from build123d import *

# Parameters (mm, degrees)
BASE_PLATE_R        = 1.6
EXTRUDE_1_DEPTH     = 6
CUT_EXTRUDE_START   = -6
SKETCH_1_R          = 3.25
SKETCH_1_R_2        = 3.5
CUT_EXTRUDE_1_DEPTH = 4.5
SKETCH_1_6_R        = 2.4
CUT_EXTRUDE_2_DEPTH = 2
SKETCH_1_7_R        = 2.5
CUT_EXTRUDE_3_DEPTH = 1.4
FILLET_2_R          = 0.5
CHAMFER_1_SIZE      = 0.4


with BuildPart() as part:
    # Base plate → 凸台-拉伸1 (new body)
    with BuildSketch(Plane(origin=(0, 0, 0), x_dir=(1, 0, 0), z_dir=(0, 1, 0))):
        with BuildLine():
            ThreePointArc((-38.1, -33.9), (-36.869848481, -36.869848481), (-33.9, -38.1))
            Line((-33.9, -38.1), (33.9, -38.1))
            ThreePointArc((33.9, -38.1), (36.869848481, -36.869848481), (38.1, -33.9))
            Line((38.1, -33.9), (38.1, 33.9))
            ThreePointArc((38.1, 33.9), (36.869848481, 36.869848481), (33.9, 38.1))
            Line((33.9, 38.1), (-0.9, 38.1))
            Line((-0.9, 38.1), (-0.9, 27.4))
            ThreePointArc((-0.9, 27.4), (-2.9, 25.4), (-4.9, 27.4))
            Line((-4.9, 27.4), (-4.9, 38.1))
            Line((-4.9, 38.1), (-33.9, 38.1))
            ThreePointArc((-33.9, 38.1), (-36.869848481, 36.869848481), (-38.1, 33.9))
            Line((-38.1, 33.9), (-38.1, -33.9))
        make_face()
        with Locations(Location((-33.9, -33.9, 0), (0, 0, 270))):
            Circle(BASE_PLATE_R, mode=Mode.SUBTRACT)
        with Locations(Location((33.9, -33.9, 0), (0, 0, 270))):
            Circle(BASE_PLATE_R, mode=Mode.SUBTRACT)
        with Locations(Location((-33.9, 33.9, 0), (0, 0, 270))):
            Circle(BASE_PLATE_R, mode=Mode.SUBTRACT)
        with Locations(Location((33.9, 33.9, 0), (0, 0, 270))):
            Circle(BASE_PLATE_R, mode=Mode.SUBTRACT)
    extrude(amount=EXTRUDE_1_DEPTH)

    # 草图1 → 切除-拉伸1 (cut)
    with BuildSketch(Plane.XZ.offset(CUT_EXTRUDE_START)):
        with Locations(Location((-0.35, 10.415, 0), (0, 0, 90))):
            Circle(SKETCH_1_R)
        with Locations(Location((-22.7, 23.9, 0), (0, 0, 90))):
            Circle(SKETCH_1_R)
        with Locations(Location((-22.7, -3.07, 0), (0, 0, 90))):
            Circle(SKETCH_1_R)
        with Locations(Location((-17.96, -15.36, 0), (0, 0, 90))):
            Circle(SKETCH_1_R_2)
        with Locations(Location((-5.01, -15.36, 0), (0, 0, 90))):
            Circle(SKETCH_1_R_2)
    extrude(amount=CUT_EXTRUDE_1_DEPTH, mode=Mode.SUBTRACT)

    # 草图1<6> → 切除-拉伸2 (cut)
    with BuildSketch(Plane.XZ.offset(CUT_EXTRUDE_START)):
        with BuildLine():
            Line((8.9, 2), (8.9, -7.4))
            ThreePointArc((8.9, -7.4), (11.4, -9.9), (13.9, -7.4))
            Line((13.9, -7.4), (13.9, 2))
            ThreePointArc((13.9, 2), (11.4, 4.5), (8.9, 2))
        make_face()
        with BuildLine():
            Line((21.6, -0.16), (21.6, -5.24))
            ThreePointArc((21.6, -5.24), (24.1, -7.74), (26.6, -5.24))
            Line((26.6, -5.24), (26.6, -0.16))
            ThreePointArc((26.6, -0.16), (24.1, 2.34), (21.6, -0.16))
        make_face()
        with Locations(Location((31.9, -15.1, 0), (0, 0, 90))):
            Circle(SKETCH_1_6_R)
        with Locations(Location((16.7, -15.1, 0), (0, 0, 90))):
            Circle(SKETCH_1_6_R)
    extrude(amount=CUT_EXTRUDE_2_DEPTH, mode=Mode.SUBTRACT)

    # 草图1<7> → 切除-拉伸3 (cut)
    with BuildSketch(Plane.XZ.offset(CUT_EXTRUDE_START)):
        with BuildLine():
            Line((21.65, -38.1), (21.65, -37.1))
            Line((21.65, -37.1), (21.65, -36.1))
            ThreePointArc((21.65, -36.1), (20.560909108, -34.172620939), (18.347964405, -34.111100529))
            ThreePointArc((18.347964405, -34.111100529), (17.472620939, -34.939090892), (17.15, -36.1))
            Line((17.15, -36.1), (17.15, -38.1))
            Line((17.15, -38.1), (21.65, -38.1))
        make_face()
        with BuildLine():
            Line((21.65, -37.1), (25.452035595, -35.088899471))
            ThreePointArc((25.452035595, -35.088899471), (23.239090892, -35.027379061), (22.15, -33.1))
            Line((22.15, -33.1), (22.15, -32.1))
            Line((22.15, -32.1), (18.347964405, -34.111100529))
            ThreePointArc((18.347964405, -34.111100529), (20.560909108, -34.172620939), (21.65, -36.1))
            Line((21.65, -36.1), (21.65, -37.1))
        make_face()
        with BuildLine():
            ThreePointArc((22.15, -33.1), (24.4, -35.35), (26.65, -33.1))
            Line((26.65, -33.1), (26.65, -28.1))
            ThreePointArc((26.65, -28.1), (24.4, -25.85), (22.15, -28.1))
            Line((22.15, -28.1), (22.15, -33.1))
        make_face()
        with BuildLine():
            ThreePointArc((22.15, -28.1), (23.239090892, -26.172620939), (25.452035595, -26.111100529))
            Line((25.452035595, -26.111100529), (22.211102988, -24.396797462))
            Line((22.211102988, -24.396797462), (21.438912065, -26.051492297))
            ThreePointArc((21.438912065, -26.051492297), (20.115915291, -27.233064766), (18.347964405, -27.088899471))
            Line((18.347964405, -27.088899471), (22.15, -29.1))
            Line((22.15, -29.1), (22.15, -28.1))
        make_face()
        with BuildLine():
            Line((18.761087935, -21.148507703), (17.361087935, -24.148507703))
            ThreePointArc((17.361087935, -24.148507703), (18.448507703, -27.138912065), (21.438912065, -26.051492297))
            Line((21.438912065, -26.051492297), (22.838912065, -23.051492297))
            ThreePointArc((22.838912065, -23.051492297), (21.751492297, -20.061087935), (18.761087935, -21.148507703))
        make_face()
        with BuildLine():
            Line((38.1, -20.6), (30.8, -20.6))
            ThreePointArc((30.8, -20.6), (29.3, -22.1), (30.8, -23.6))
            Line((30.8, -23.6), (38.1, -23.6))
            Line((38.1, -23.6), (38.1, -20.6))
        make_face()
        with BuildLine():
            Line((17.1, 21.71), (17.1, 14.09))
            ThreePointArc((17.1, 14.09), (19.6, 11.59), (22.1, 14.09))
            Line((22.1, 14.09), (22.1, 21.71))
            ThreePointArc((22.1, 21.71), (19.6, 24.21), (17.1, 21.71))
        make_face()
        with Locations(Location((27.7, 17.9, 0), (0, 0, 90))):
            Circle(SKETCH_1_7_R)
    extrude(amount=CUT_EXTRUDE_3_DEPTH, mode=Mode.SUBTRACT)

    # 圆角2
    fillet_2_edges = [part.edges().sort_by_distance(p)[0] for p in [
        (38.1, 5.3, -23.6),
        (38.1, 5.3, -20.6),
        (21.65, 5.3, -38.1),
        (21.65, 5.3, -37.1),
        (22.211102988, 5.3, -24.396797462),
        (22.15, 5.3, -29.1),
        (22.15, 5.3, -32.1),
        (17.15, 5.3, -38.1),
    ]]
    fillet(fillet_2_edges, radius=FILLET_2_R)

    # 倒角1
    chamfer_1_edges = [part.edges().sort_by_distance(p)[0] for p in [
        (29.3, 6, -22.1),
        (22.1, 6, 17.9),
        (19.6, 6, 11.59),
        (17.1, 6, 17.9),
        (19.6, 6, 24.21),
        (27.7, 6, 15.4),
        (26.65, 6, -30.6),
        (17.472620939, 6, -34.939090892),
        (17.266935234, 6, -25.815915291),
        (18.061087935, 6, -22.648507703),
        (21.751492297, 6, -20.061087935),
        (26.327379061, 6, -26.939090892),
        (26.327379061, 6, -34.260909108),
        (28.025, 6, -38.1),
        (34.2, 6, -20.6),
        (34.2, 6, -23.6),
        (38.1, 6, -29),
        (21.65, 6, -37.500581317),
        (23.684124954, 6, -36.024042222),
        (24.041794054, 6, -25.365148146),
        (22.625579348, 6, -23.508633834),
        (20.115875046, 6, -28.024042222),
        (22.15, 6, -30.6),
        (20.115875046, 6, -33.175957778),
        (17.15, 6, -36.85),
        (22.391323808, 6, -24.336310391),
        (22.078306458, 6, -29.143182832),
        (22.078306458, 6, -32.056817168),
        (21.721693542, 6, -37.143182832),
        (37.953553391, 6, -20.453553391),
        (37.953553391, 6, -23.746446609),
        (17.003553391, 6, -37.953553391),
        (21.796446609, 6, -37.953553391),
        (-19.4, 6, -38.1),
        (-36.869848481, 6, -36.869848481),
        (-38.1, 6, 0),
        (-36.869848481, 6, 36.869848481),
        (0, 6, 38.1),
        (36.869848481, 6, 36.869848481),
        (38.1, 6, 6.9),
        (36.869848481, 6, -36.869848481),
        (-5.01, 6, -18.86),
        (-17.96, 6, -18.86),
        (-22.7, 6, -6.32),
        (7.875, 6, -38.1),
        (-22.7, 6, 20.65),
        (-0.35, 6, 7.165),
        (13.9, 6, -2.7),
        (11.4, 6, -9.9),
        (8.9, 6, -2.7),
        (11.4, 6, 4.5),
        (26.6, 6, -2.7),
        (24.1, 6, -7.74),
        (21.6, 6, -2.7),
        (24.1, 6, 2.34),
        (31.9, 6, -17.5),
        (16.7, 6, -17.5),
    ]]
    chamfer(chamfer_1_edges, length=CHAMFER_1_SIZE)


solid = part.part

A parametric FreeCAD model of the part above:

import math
import FreeCAD as App
import Part
import Sketcher
from FreeCAD import Vector
Q = App.Units.Quantity


def edges_at(feature, points):
    """Names of the edges that pass closest to the given points."""
    edges = feature.Shape.Edges
    near = lambda p: min(range(len(edges)), key=lambda i: edges[i].distToShape(Part.Vertex(*p))[0])
    return sorted({f"Edge{near(p) + 1}" for p in points})

doc = App.newDocument("Part")
body = doc.addObject("PartDesign::Body", "Body")

sketch1 = body.newObject("Sketcher::SketchObject", "Sketch")
sketch1.AttachmentSupport = (doc.getObject("XZ_Plane"), [""])
sketch1.MapMode = "FlatFace"
sketch1.addGeometry([
    Part.ArcOfCircle(Part.Circle(Vector(-33.9, 33.9, 0), Vector(0, 0, 1), 4.2), math.radians(90), math.radians(180)),
    Part.LineSegment(Vector(-33.9, 38.1, 0), Vector(33.9, 38.1, 0)),
    Part.ArcOfCircle(Part.Circle(Vector(33.9, 33.9, 0), Vector(0, 0, 1), 4.2), math.radians(0), math.radians(90)),
    Part.LineSegment(Vector(38.1, 33.9, 0), Vector(38.1, -33.9, 0)),
    Part.ArcOfCircle(Part.Circle(Vector(33.9, -33.9, 0), Vector(0, 0, 1), 4.2), math.radians(-90), math.radians(0)),
    Part.LineSegment(Vector(33.9, -38.1, 0), Vector(-0.9, -38.1, 0)),
    Part.LineSegment(Vector(-0.9, -38.1, 0), Vector(-0.9, -27.4, 0)),
    Part.ArcOfCircle(Part.Circle(Vector(-2.9, -27.4, 0), Vector(0, 0, 1), 2), math.radians(0), math.radians(180)),
    Part.LineSegment(Vector(-4.9, -27.4, 0), Vector(-4.9, -38.1, 0)),
    Part.LineSegment(Vector(-4.9, -38.1, 0), Vector(-33.9, -38.1, 0)),
    Part.ArcOfCircle(Part.Circle(Vector(-33.9, -33.9, 0), Vector(0, 0, 1), 4.2), math.radians(180), math.radians(270)),
    Part.LineSegment(Vector(-38.1, -33.9, 0), Vector(-38.1, 33.9, 0)),
    Part.Circle(Vector(-33.9, 33.9, 0), Vector(0, 0, 1), 1.6),
    Part.Circle(Vector(33.9, 33.9, 0), Vector(0, 0, 1), 1.6),
    Part.Circle(Vector(-33.9, -33.9, 0), Vector(0, 0, 1), 1.6),
    Part.Circle(Vector(33.9, -33.9, 0), Vector(0, 0, 1), 1.6),
], False)
sketch1.addConstraint([
    Sketcher.Constraint("Tangent", 0, 1, 1, 1),
    Sketcher.Constraint("Tangent", 1, 2, 2, 2),
    Sketcher.Constraint("Tangent", 2, 1, 3, 1),
    Sketcher.Constraint("Tangent", 3, 2, 4, 2),
    Sketcher.Constraint("Tangent", 4, 1, 5, 1),
    Sketcher.Constraint("Coincident", 5, 2, 6, 1),
    Sketcher.Constraint("Tangent", 6, 2, 7, 1),
    Sketcher.Constraint("Tangent", 7, 2, 8, 1),
    Sketcher.Constraint("Coincident", 8, 2, 9, 1),
    Sketcher.Constraint("Tangent", 9, 2, 10, 2),
    Sketcher.Constraint("Tangent", 10, 1, 11, 1),
    Sketcher.Constraint("Tangent", 11, 2, 0, 2),
    Sketcher.Constraint("Horizontal", 1),
    Sketcher.Constraint("Vertical", 3),
    Sketcher.Constraint("Horizontal", 5),
    Sketcher.Constraint("Vertical", 6),
    Sketcher.Constraint("Vertical", 8),
    Sketcher.Constraint("Horizontal", 9),
    Sketcher.Constraint("Vertical", 11),
    Sketcher.Constraint("Coincident", 12, 3, 0, 3),
    Sketcher.Constraint("Coincident", 13, 3, 2, 3),
    Sketcher.Constraint("Coincident", 14, 3, 10, 3),
    Sketcher.Constraint("Coincident", 15, 3, 4, 3),
    Sketcher.Constraint("Equal", 0, 2),
    Sketcher.Constraint("Equal", 2, 4),
    Sketcher.Constraint("Equal", 4, 10),
    Sketcher.Constraint("Equal", 12, 13),
    Sketcher.Constraint("Equal", 13, 14),
    Sketcher.Constraint("Equal", 14, 15),
    Sketcher.Constraint("Symmetric", 0, 3, 4, 3, -1, 1),
    Sketcher.Constraint("Horizontal", 4, 3, 10, 3),
    Sketcher.Constraint("Equal", 1, 3),
    Sketcher.Constraint("Radius", 7, Q("2 mm")),
    Sketcher.Constraint("Diameter", 12, Q("3.2 mm")),
    Sketcher.Constraint("Radius", 0, Q("4.2 mm")),
    Sketcher.Constraint("DistanceX", 9, 2, 9, 1, Q("29 mm")),
    Sketcher.Constraint("DistanceX", 1, 1, 1, 2, Q("67.8 mm")),
    Sketcher.Constraint("DistanceY", 6, 1, 6, 2, Q("10.7 mm")),
])
pad1 = body.newObject("PartDesign::Pad", "Pad")
pad1.Profile = sketch1
pad1.Length = 6
pad1.Reversed = True

sketch2 = body.newObject("Sketcher::SketchObject", "Sketch001")
sketch2.AttachmentSupport = (doc.getObject("XZ_Plane"), [""])
sketch2.MapMode = "FlatFace"
sketch2.AttachmentOffset = App.Placement(Vector(0, 0, -6), App.Rotation())
sketch2.addGeometry([
    Part.Circle(Vector(-0.3, 10.4, 0), Vector(0, 0, 1), 3.2),
    Part.Circle(Vector(-22.7, 23.9, 0), Vector(0, 0, 1), 3.2),
    Part.Circle(Vector(-22.7, -3.1, 0), Vector(0, 0, 1), 3.2),
    Part.Circle(Vector(-18, -15.4, 0), Vector(0, 0, 1), 3.5),
    Part.Circle(Vector(-5, -15.4, 0), Vector(0, 0, 1), 3.5),
], False)
sketch2.addConstraint([
    Sketcher.Constraint("Equal", 0, 1),
    Sketcher.Constraint("Equal", 1, 2),
    Sketcher.Constraint("Equal", 3, 4),
    Sketcher.Constraint("Horizontal", 3, 3, 4, 3),
    Sketcher.Constraint("Vertical", 1, 3, 2, 3),
    Sketcher.Constraint("Diameter", 3, Q("7 mm")),
    Sketcher.Constraint("Diameter", 0, Q("6.5 mm")),
    Sketcher.Constraint("DistanceX", 1, 3, -1, 1, Q("22.7 mm")),
    Sketcher.Constraint("DistanceY", -1, 1, 1, 3, Q("23.9 mm")),
    Sketcher.Constraint("DistanceX", 0, 3, -1, 1, Q("0.35 mm")),
    Sketcher.Constraint("DistanceY", 2, 3, -1, 1, Q("3.07 mm")),
    Sketcher.Constraint("DistanceX", 3, 3, -1, 1, Q("17.96 mm")),
    Sketcher.Constraint("DistanceY", 3, 3, -1, 1, Q("15.36 mm")),
    Sketcher.Constraint("DistanceX", 4, 3, -1, 1, Q("5.01 mm")),
    Sketcher.Constraint("DistanceY", -1, 1, 0, 3, Q("10.415 mm")),
])
pocket1 = body.newObject("PartDesign::Pocket", "Pocket")
pocket1.Profile = sketch2
pocket1.Length = 4.5
pocket1.Reversed = True

sketch3 = body.newObject("Sketcher::SketchObject", "Sketch002")
sketch3.AttachmentSupport = (doc.getObject("XZ_Plane"), [""])
sketch3.MapMode = "FlatFace"
sketch3.AttachmentOffset = App.Placement(Vector(0, 0, -6), App.Rotation())
sketch3.addGeometry([
    Part.LineSegment(Vector(8.9, 2, 0), Vector(8.9, -7.4, 0)),
    Part.ArcOfCircle(Part.Circle(Vector(11.4, -7.4, 0), Vector(0, 0, 1), 2.5), math.radians(180), math.radians(360)),
    Part.LineSegment(Vector(13.9, -7.4, 0), Vector(13.9, 2, 0)),
    Part.ArcOfCircle(Part.Circle(Vector(11.4, 2, 0), Vector(0, 0, 1), 2.5), math.radians(0), math.radians(180)),
    Part.LineSegment(Vector(21.6, -0.2, 0), Vector(21.6, -5.2, 0)),
    Part.ArcOfCircle(Part.Circle(Vector(24.1, -5.2, 0), Vector(0, 0, 1), 2.5), math.radians(180), math.radians(360)),
    Part.LineSegment(Vector(26.6, -5.2, 0), Vector(26.6, -0.2, 0)),
    Part.ArcOfCircle(Part.Circle(Vector(24.1, -0.2, 0), Vector(0, 0, 1), 2.5), math.radians(0), math.radians(180)),
    Part.Circle(Vector(31.9, -15.1, 0), Vector(0, 0, 1), 2.4),
    Part.Circle(Vector(16.7, -15.1, 0), Vector(0, 0, 1), 2.4),
], False)
sketch3.addConstraint([
    Sketcher.Constraint("Tangent", 0, 2, 1, 1),
    Sketcher.Constraint("Tangent", 1, 2, 2, 1),
    Sketcher.Constraint("Tangent", 2, 2, 3, 1),
    Sketcher.Constraint("Tangent", 3, 2, 0, 1),
    Sketcher.Constraint("Tangent", 4, 2, 5, 1),
    Sketcher.Constraint("Tangent", 5, 2, 6, 1),
    Sketcher.Constraint("Tangent", 6, 2, 7, 1),
    Sketcher.Constraint("Tangent", 7, 2, 4, 1),
    Sketcher.Constraint("Vertical", 0),
    Sketcher.Constraint("Vertical", 2),
    Sketcher.Constraint("Vertical", 4),
    Sketcher.Constraint("Vertical", 6),
    Sketcher.Constraint("Equal", 3, 5),
    Sketcher.Constraint("Equal", 8, 9),
    Sketcher.Constraint("Horizontal", 8, 3, 9, 3),
    Sketcher.Constraint("Diameter", 8, Q("4.8 mm")),
    Sketcher.Constraint("Radius", 1, Q("2.5 mm")),
    Sketcher.Constraint("DistanceY", 0, 2, 0, 1, Q("9.4 mm")),
    Sketcher.Constraint("DistanceY", -1, 1, 3, 3, Q("2 mm")),
    Sketcher.Constraint("DistanceY", 4, 2, 4, 1, Q("5.08 mm")),
    Sketcher.Constraint("DistanceX", -1, 1, 1, 3, Q("11.4 mm")),
    Sketcher.Constraint("DistanceX", -1, 1, 5, 3, Q("24.1 mm")),
    Sketcher.Constraint("DistanceX", -1, 1, 8, 3, Q("31.9 mm")),
    Sketcher.Constraint("DistanceY", 8, 3, -1, 1, Q("15.1 mm")),
    Sketcher.Constraint("DistanceX", -1, 1, 9, 3, Q("16.7 mm")),
    Sketcher.Constraint("DistanceY", 5, 3, -1, 1, Q("5.24 mm")),
])
pocket2 = body.newObject("PartDesign::Pocket", "Pocket001")
pocket2.Profile = sketch3
pocket2.Length = 2
pocket2.Reversed = True

sketch4 = body.newObject("Sketcher::SketchObject", "Sketch003")
sketch4.AttachmentSupport = (doc.getObject("XZ_Plane"), [""])
sketch4.MapMode = "FlatFace"
sketch4.AttachmentOffset = App.Placement(Vector(0, 0, -6), App.Rotation())
sketch4.addGeometry([
    Part.LineSegment(Vector(21.6, -38.1, 0), Vector(21.6, -37.1, 0)),
    Part.LineSegment(Vector(21.6, -37.1, 0), Vector(25.5, -35.1, 0)),
    Part.ArcOfCircle(Part.Circle(Vector(24.4, -33.1, 0), Vector(0, 0, 1), 2.2), math.radians(-62), math.radians(0)),
    Part.LineSegment(Vector(26.6, -33.1, 0), Vector(26.6, -28.1, 0)),
    Part.ArcOfCircle(Part.Circle(Vector(24.4, -28.1, 0), Vector(0, 0, 1), 2.2), math.radians(0), math.radians(62)),
    Part.LineSegment(Vector(25.5, -26.1, 0), Vector(22.2, -24.4, 0)),
    Part.LineSegment(Vector(22.2, -24.4, 0), Vector(22.8, -23.1, 0)),
    Part.ArcOfCircle(Part.Circle(Vector(20.8, -22.1, 0), Vector(0, 0, 1), 2.2), math.radians(-25), math.radians(155)),
    Part.LineSegment(Vector(18.8, -21.1, 0), Vector(17.4, -24.1, 0)),
    Part.ArcOfCircle(Part.Circle(Vector(19.4, -25.1, 0), Vector(0, 0, 1), 2.2), math.radians(155), math.radians(242)),
    Part.LineSegment(Vector(18.3, -27.1, 0), Vector(22.1, -29.1, 0)),
    Part.LineSegment(Vector(22.1, -29.1, 0), Vector(22.1, -32.1, 0)),
    Part.LineSegment(Vector(22.1, -32.1, 0), Vector(18.3, -34.1, 0)),
    Part.ArcOfCircle(Part.Circle(Vector(19.4, -36.1, 0), Vector(0, 0, 1), 2.2), math.radians(118), math.radians(180)),
    Part.LineSegment(Vector(17.1, -36.1, 0), Vector(17.1, -38.1, 0)),
    Part.LineSegment(Vector(17.1, -38.1, 0), Vector(21.6, -38.1, 0)),
    Part.LineSegment(Vector(38.1, -20.6, 0), Vector(30.8, -20.6, 0)),
    Part.ArcOfCircle(Part.Circle(Vector(30.8, -22.1, 0), Vector(0, 0, 1), 1.5), math.radians(90), math.radians(270)),
    Part.LineSegment(Vector(30.8, -23.6, 0), Vector(38.1, -23.6, 0)),
    Part.LineSegment(Vector(38.1, -23.6, 0), Vector(38.1, -20.6, 0)),
    Part.LineSegment(Vector(17.1, 21.7, 0), Vector(17.1, 14.1, 0)),
    Part.ArcOfCircle(Part.Circle(Vector(19.6, 14.1, 0), Vector(0, 0, 1), 2.5), math.radians(180), math.radians(360)),
    Part.LineSegment(Vector(22.1, 14.1, 0), Vector(22.1, 21.7, 0)),
    Part.ArcOfCircle(Part.Circle(Vector(19.6, 21.7, 0), Vector(0, 0, 1), 2.5), math.radians(0), math.radians(180)),
    Part.Circle(Vector(27.7, 17.9, 0), Vector(0, 0, 1), 2.5),
], False)
sketch4.addConstraint([
    Sketcher.Constraint("Coincident", 0, 2, 1, 1),
    Sketcher.Constraint("Tangent", 1, 2, 2, 1),
    Sketcher.Constraint("Tangent", 2, 2, 3, 1),
    Sketcher.Constraint("Tangent", 3, 2, 4, 1),
    Sketcher.Constraint("Tangent", 4, 2, 5, 1),
    Sketcher.Constraint("Coincident", 5, 2, 6, 1),
    Sketcher.Constraint("Tangent", 6, 2, 7, 1),
    Sketcher.Constraint("Tangent", 7, 2, 8, 1),
    Sketcher.Constraint("Tangent", 8, 2, 9, 1),
    Sketcher.Constraint("Tangent", 9, 2, 10, 1),
    Sketcher.Constraint("Coincident", 10, 2, 11, 1),
    Sketcher.Constraint("Coincident", 11, 2, 12, 1),
    Sketcher.Constraint("Tangent", 12, 2, 13, 1),
    Sketcher.Constraint("Tangent", 13, 2, 14, 1),
    Sketcher.Constraint("Coincident", 14, 2, 15, 1),
    Sketcher.Constraint("Coincident", 15, 2, 0, 1),
    Sketcher.Constraint("Tangent", 16, 2, 17, 1),
    Sketcher.Constraint("Tangent", 17, 2, 18, 1),
    Sketcher.Constraint("Coincident", 18, 2, 19, 1),
    Sketcher.Constraint("Coincident", 19, 2, 16, 1),
    Sketcher.Constraint("Tangent", 20, 2, 21, 1),
    Sketcher.Constraint("Tangent", 21, 2, 22, 1),
    Sketcher.Constraint("Tangent", 22, 2, 23, 1),
    Sketcher.Constraint("Tangent", 23, 2, 20, 1),
    Sketcher.Constraint("Vertical", 0),
    Sketcher.Constraint("Vertical", 3),
    Sketcher.Constraint("Vertical", 11),
    Sketcher.Constraint("Vertical", 14),
    Sketcher.Constraint("Horizontal", 15),
    Sketcher.Constraint("Horizontal", 16),
    Sketcher.Constraint("Horizontal", 18),
    Sketcher.Constraint("Vertical", 19),
    Sketcher.Constraint("Vertical", 20),
    Sketcher.Constraint("Vertical", 22),
    Sketcher.Constraint("Equal", 2, 4),
    Sketcher.Constraint("Equal", 4, 7),
    Sketcher.Constraint("Equal", 7, 9),
    Sketcher.Constraint("Equal", 9, 13),
    Sketcher.Constraint("Equal", 23, 24),
    Sketcher.Constraint("Parallel", 6, 8),
    Sketcher.Constraint("Parallel", 5, 10),
    Sketcher.Constraint("Parallel", 1, 12),
    Sketcher.Constraint("Horizontal", 7, 3, 17, 3),
    Sketcher.Constraint("Vertical", 9, 3, 13, 3),
    Sketcher.Constraint("Vertical", 1, 2, 4, 2),
    Sketcher.Constraint("Equal", 11, 19),
    Sketcher.Constraint("Equal", 1, 10),
    Sketcher.Constraint("Diameter", 24, Q("5 mm")),
    Sketcher.Constraint("Radius", 17, Q("1.5 mm")),
    Sketcher.Constraint("DistanceY", 0, 1, 0, 2, Q("1 mm")),
    Sketcher.Constraint("DistanceY", 3, 1, 3, 2, Q("5 mm")),
    Sketcher.Constraint("DistanceY", 14, 2, 14, 1, Q("2 mm")),
    Sketcher.Constraint("Radius", 2, Q("2.25 mm")),
    Sketcher.Constraint("DistanceX", 15, 1, 15, 2, Q("4.5 mm")),
    Sketcher.Constraint("DistanceX", 16, 2, 16, 1, Q("7.3 mm")),
    Sketcher.Constraint("DistanceY", 4, 3, 7, 3, Q("6 mm")),
    Sketcher.Constraint("DistanceY", 9, 3, 7, 3, Q("3 mm")),
    Sketcher.Constraint("DistanceX", 9, 3, 4, 3, Q("5 mm")),
    Sketcher.Constraint("DistanceX", 7, 3, 17, 3, Q("10 mm")),
    Sketcher.Constraint("DistanceY", 17, 3, 24, 3, Q("40 mm")),
    Sketcher.Constraint("DistanceY", 20, 2, 20, 1, Q("7.62 mm")),
    Sketcher.Constraint("DistanceX", -1, 1, 2, 3, Q("24.4 mm")),
    Sketcher.Constraint("DistanceY", 2, 3, -1, 1, Q("33.1 mm")),
    Sketcher.Constraint("DistanceX", -1, 1, 7, 3, Q("20.8 mm")),
    Sketcher.Constraint("DistanceX", -1, 1, 21, 3, Q("19.6 mm")),
    Sketcher.Constraint("DistanceX", -1, 1, 24, 3, Q("27.7 mm")),
    Sketcher.Constraint("DistanceY", -1, 1, 21, 3, Q("14.09 mm")),
])
pocket3 = body.newObject("PartDesign::Pocket", "Pocket002")
pocket3.Profile = sketch4
pocket3.Length = 1.4
pocket3.Reversed = True
doc.recompute()

fillet = body.newObject("PartDesign::Fillet", "Fillet")
fillet.Base = (pocket3, edges_at(pocket3, [
    (38.1, 5.3, -23.6),
    (38.1, 5.3, -20.6),
    (21.65, 5.3, -38.1),
    (21.65, 5.3, -37.1),
    (22.211, 5.3, -24.397),
    (22.15, 5.3, -29.1),
    (22.15, 5.3, -32.1),
    (17.15, 5.3, -38.1),
]))
fillet.Radius = 0.5
doc.recompute()

chamfer = body.newObject("PartDesign::Chamfer", "Chamfer")
chamfer.Base = (fillet, edges_at(fillet, [
    (29.3, 6, -22.1),
    (22.1, 6, 17.9),
    (19.6, 6, 11.59),
    (17.1, 6, 17.9),
    (19.6, 6, 24.21),
    (27.7, 6, 15.4),
    (26.65, 6, -30.6),
    (17.473, 6, -34.939),
    (17.267, 6, -25.816),
    (18.061, 6, -22.649),
    (21.751, 6, -20.061),
    (26.327, 6, -26.939),
    (26.327, 6, -34.261),
    (28.025, 6, -38.1),
    (34.2, 6, -20.6),
    (34.2, 6, -23.6),
    (38.1, 6, -29),
    (21.65, 6, -37.501),
    (23.684, 6, -36.024),
    (24.042, 6, -25.365),
    (22.626, 6, -23.509),
    (20.116, 6, -28.024),
    (22.15, 6, -30.6),
    (20.116, 6, -33.176),
    (17.15, 6, -36.85),
    (22.391, 6, -24.336),
    (22.078, 6, -29.143),
    (22.078, 6, -32.057),
    (21.722, 6, -37.143),
    (37.954, 6, -20.454),
    (37.954, 6, -23.746),
    (17.004, 6, -37.954),
    (21.796, 6, -37.954),
    (-19.4, 6, -38.1),
    (-36.87, 6, -36.87),
    (-38.1, 6, 0),
    (-36.87, 6, 36.87),
    (0, 6, 38.1),
    (36.87, 6, 36.87),
    (38.1, 6, 6.9),
    (36.87, 6, -36.87),
    (-5.01, 6, -18.86),
    (-17.96, 6, -18.86),
    (-22.7, 6, -6.32),
    (7.875, 6, -38.1),
    (-22.7, 6, 20.65),
    (-0.35, 6, 7.165),
    (13.9, 6, -2.7),
    (11.4, 6, -9.9),
    (8.9, 6, -2.7),
    (11.4, 6, 4.5),
    (26.6, 6, -2.7),
    (24.1, 6, -7.74),
    (21.6, 6, -2.7),
    (24.1, 6, 2.34),
    (31.9, 6, -17.5),
    (16.7, 6, -17.5),
]))
chamfer.Size = 0.4

doc.recompute()
